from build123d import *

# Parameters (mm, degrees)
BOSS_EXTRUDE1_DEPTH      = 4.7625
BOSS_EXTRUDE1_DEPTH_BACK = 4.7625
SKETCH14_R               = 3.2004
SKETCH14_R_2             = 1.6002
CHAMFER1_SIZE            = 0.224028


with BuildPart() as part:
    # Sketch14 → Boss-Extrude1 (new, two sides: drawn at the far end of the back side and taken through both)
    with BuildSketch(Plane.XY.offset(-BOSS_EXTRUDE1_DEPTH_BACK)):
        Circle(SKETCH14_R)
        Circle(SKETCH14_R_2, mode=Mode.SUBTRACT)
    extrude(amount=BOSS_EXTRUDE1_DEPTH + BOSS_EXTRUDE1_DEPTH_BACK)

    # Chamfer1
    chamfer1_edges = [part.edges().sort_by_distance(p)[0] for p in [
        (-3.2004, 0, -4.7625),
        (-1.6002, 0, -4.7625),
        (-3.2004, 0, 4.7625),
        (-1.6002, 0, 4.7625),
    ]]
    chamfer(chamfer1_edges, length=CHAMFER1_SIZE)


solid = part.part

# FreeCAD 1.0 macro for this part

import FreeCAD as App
import Part
import Sketcher
from FreeCAD import Vector
Q = App.Units.Quantity


def edges_at(feature, points):
    """Names of the edges that pass closest to the given points."""
    edges = feature.Shape.Edges
    near = lambda p: min(range(len(edges)), key=lambda i: edges[i].distToShape(Part.Vertex(*p))[0])
    return sorted({f"Edge{near(p) + 1}" for p in points})

doc = App.newDocument("Part")
params = doc.addObject("Spreadsheet::Sheet", "Params")
for row, (alias, value) in enumerate([
    ("sketch1_diameter", "0.252 in"),
    ("sketch1_diameter2", "0.126 in"),
    ("pad1_length", "0.1875 in"),
    ("pad1_length2", "0.1875 in"),
    ("chamfer_size", "0.224028 mm"),
], start=1):
    params.set(f"A{row}", alias)
    params.set(f"B{row}", "=" + value)
    params.setAlias(f"B{row}", alias)

body = doc.addObject("PartDesign::Body", "Body")

sketch1 = body.newObject("Sketcher::SketchObject", "Sketch")
sketch1.AttachmentSupport = (doc.getObject("XY_Plane"), [""])
sketch1.MapMode = "FlatFace"
sketch1.addGeometry([
    Part.Circle(Vector(0, 0, 0), Vector(0, 0, 1), 3.2),
    Part.Circle(Vector(0, 0, 0), Vector(0, 0, 1), 1.6),
], False)
sketch1.addConstraint([
    Sketcher.Constraint("Coincident", 0, 3, -1, 1),
    Sketcher.Constraint("Coincident", 1, 3, -1, 1),
    Sketcher.Constraint("Diameter", 0, Q("0.252 in")),
    Sketcher.Constraint("Diameter", 1, Q("0.126 in")),
])
sketch1.setExpression("Constraints[2]", "Params.sketch1_diameter")
sketch1.setExpression("Constraints[3]", "Params.sketch1_diameter2")
pad1 = body.newObject("PartDesign::Pad", "Pad")
pad1.Profile = sketch1
pad1.Type = "TwoLengths"
pad1.setExpression("Length", "Params.pad1_length")
pad1.setExpression("Length2", "Params.pad1_length2")
doc.recompute()

chamfer = body.newObject("PartDesign::Chamfer", "Chamfer")
chamfer.Base = (pad1, edges_at(pad1, [
    (-3.2, 0, -4.763),
    (-1.6, 0, -4.763),
    (-3.2, 0, 4.763),
    (-1.6, 0, 4.763),
]))
chamfer.setExpression("Size", "Params.chamfer_size")

doc.recompute()
